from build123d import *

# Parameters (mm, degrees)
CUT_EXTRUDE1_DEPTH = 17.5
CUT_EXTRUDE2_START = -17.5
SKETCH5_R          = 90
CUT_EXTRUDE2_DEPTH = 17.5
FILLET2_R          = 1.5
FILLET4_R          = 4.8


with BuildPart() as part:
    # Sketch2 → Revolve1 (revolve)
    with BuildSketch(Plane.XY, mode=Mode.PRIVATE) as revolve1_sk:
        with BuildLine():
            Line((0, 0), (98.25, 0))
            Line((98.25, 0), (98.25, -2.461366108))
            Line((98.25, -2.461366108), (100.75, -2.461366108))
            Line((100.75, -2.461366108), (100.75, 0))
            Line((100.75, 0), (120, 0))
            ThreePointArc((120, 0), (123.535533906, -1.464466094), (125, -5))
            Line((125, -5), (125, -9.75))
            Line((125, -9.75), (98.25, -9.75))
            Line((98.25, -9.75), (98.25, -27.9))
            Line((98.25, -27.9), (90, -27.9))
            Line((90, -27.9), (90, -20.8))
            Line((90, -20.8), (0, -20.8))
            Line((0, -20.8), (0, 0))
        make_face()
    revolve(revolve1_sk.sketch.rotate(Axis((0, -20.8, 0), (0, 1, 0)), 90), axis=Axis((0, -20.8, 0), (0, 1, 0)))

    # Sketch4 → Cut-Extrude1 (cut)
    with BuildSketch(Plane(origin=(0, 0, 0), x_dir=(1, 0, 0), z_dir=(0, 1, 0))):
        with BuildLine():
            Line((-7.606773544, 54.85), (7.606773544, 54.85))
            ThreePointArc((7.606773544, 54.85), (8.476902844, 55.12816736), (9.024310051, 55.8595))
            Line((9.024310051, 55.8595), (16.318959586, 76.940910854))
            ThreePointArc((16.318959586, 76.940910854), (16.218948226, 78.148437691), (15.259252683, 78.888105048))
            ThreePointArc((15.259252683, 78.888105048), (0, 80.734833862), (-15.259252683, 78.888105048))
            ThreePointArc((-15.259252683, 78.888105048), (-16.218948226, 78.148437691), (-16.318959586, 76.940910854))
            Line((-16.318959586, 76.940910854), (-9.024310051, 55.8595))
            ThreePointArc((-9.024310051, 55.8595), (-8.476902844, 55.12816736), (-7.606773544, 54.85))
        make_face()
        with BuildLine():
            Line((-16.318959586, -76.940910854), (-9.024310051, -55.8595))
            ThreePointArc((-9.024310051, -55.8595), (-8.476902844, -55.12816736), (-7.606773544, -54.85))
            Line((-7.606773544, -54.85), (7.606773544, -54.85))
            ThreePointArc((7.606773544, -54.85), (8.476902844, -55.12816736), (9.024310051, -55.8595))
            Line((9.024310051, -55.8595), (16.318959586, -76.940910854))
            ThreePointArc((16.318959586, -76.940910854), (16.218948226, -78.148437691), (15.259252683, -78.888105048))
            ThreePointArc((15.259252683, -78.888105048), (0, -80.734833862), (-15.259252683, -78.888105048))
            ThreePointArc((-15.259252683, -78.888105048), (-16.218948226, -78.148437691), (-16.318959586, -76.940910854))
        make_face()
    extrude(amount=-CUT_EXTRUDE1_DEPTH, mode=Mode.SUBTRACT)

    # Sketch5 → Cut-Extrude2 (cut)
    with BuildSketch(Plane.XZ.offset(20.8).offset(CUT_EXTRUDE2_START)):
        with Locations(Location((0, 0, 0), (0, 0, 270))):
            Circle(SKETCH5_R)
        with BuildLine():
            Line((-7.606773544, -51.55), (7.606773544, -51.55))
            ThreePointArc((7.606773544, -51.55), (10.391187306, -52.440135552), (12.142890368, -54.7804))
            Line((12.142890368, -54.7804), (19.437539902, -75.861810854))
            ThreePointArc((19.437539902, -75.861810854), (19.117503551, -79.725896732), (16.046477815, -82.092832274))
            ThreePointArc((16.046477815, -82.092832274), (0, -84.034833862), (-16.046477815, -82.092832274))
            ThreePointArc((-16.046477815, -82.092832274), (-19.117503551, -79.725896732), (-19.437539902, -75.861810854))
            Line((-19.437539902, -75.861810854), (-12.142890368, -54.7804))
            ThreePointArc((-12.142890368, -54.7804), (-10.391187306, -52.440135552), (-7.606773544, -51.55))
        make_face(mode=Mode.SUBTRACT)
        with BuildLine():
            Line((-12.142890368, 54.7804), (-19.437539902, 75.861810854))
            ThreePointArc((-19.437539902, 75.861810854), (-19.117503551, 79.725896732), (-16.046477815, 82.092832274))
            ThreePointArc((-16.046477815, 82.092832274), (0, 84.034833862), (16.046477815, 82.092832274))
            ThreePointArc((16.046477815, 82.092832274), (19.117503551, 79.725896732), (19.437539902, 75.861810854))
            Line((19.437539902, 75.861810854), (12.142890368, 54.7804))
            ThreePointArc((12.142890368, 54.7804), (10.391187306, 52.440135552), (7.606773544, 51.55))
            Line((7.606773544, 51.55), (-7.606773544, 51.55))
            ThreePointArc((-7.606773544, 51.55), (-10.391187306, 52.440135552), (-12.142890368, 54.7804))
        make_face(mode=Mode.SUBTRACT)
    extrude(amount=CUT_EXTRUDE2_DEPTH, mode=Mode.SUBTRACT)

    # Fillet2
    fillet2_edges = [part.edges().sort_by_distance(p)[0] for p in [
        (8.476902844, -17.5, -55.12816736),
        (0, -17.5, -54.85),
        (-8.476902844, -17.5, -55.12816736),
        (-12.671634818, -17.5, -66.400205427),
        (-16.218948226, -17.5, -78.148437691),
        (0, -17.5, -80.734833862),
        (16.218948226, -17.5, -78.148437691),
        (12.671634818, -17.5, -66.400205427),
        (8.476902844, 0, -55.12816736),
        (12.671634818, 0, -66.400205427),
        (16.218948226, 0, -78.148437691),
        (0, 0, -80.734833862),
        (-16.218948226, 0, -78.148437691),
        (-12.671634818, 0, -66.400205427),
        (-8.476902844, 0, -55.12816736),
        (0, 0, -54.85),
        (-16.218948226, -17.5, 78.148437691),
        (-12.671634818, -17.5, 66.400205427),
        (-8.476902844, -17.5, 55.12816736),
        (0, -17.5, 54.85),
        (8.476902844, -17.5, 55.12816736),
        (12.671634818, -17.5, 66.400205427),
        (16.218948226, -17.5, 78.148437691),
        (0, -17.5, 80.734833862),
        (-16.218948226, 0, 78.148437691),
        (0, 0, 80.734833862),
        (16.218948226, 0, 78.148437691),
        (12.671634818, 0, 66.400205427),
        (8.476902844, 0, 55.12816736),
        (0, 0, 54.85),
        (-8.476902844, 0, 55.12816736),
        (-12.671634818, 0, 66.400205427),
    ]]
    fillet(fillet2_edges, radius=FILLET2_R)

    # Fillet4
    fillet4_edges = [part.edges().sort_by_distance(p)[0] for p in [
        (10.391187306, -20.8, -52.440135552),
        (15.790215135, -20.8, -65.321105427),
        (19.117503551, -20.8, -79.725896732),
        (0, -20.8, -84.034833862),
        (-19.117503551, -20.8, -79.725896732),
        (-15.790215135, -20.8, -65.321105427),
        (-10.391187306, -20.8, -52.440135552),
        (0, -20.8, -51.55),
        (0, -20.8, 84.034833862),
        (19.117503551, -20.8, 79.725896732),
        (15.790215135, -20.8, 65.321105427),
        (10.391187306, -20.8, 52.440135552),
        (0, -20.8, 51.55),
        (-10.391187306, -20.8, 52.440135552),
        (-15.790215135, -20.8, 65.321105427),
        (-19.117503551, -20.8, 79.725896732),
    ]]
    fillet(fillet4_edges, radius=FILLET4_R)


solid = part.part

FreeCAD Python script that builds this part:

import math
import FreeCAD as App
import Part
import Sketcher


def edges_at(feature, points):
    """Names of the edges that pass closest to the given points."""
    edges = feature.Shape.Edges
    near = lambda p: min(range(len(edges)), key=lambda i: edges[i].distToShape(Part.Vertex(*p))[0])
    return sorted({f"Edge{near(p) + 1}" for p in points})

doc = App.newDocument("Part")
body = doc.addObject("PartDesign::Body", "Body")

# Sketch on XY plane
sketch1 = body.newObject("Sketcher::SketchObject", "Sketch")
sketch1.AttachmentSupport = (doc.getObject("XY_Plane"), [""])
sketch1.MapMode = "FlatFace"
sketch1.addGeometry(Part.LineSegment(App.Vector(98.2, 0, 0), App.Vector(0, 0, 0)), False)
sketch1.addGeometry(Part.LineSegment(App.Vector(0, 0, 0), App.Vector(0, -20.8, 0)), False)
sketch1.addGeometry(Part.LineSegment(App.Vector(0, -20.8, 0), App.Vector(90, -20.8, 0)), False)
sketch1.addGeometry(Part.LineSegment(App.Vector(90, -20.8, 0), App.Vector(90, -27.9, 0)), False)
sketch1.addGeometry(Part.LineSegment(App.Vector(90, -27.9, 0), App.Vector(98.2, -27.9, 0)), False)
sketch1.addGeometry(Part.LineSegment(App.Vector(98.2, -27.9, 0), App.Vector(98.2, -9.8, 0)), False)
sketch1.addGeometry(Part.LineSegment(App.Vector(98.2, -9.8, 0), App.Vector(125, -9.8, 0)), False)
sketch1.addGeometry(Part.LineSegment(App.Vector(125, -9.8, 0), App.Vector(125, -5, 0)), False)
sketch1.addGeometry(Part.ArcOfCircle(Part.Circle(App.Vector(120, -5, 0), App.Vector(0, 0, 1), 5), math.radians(0), math.radians(90)), False)
sketch1.addGeometry(Part.LineSegment(App.Vector(120, 0, 0), App.Vector(100.8, 0, 0)), False)
sketch1.addGeometry(Part.LineSegment(App.Vector(100.8, 0, 0), App.Vector(100.8, -2.5, 0)), False)
sketch1.addGeometry(Part.LineSegment(App.Vector(100.8, -2.5, 0), App.Vector(98.2, -2.5, 0)), False)
sketch1.addGeometry(Part.LineSegment(App.Vector(98.2, -2.5, 0), App.Vector(98.2, 0, 0)), False)
sketch1.addConstraint(Sketcher.Constraint("Coincident", 0, 2, 1, 1))
sketch1.addConstraint(Sketcher.Constraint("Coincident", 1, 2, 2, 1))
sketch1.addConstraint(Sketcher.Constraint("Coincident", 2, 2, 3, 1))
sketch1.addConstraint(Sketcher.Constraint("Coincident", 3, 2, 4, 1))
sketch1.addConstraint(Sketcher.Constraint("Coincident", 4, 2, 5, 1))
sketch1.addConstraint(Sketcher.Constraint("Coincident", 5, 2, 6, 1))
sketch1.addConstraint(Sketcher.Constraint("Coincident", 6, 2, 7, 1))
sketch1.addConstraint(Sketcher.Constraint("Tangent", 7, 2, 8, 1))
sketch1.addConstraint(Sketcher.Constraint("Tangent", 8, 2, 9, 1))
sketch1.addConstraint(Sketcher.Constraint("Coincident", 9, 2, 10, 1))
sketch1.addConstraint(Sketcher.Constraint("Coincident", 10, 2, 11, 1))
sketch1.addConstraint(Sketcher.Constraint("Coincident", 11, 2, 12, 1))
sketch1.addConstraint(Sketcher.Constraint("Coincident", 12, 2, 0, 1))
sketch1.addConstraint(Sketcher.Constraint("Horizontal", 0))
sketch1.addConstraint(Sketcher.Constraint("Vertical", 1))
sketch1.addConstraint(Sketcher.Constraint("Horizontal", 2))
sketch1.addConstraint(Sketcher.Constraint("Vertical", 3))
sketch1.addConstraint(Sketcher.Constraint("Horizontal", 4))
sketch1.addConstraint(Sketcher.Constraint("Vertical", 5))
sketch1.addConstraint(Sketcher.Constraint("Horizontal", 6))
sketch1.addConstraint(Sketcher.Constraint("Vertical", 7))
sketch1.addConstraint(Sketcher.Constraint("Horizontal", 9))
sketch1.addConstraint(Sketcher.Constraint("Vertical", 10))
sketch1.addConstraint(Sketcher.Constraint("Horizontal", 11))
sketch1.addConstraint(Sketcher.Constraint("Vertical", 12))
sketch1.addConstraint(Sketcher.Constraint("Coincident", 0, 2, -1, 1))
sketch1.addConstraint(Sketcher.Constraint("PointOnObject", 8, 2, -1))
sketch1.addConstraint(Sketcher.Constraint("Vertical", 5, 2, 11, 2))
sketch1.addConstraint(Sketcher.Constraint("Radius", 8, 5.0))
sketch1.addConstraint(Sketcher.Constraint("DistanceX", 2, 1, 2, 2, 90.0))
sketch1.addConstraint(Sketcher.Constraint("DistanceX", 11, 2, 11, 1, 2.5))
sketch1.addConstraint(Sketcher.Constraint("DistanceY", 1, 2, 1, 1, 20.8))
sketch1.addConstraint(Sketcher.Constraint("DistanceY", 3, 2, 3, 1, 7.1))
sketch1.addConstraint(Sketcher.Constraint("DistanceX", -1, 1, 8, 3, 120.0))
sketch1.addConstraint(Sketcher.Constraint("DistanceX", 0, 2, 0, 1, 98.25))
sketch1.addConstraint(Sketcher.Constraint("DistanceY", 5, 1, 5, 2, 18.15))
sketch1.addConstraint(Sketcher.Constraint("DistanceY", 10, 2, 10, 1, 2.461366))
revolution = body.newObject("PartDesign::Revolution", "Revolution")
revolution.Profile = sketch1
revolution.ReferenceAxis = (sketch1, ["V_Axis"])
revolution.Angle = 360

# Sketch on XZ plane
sketch2 = body.newObject("Sketcher::SketchObject", "Sketch001")
sketch2.AttachmentSupport = (doc.getObject("XZ_Plane"), [""])
sketch2.MapMode = "FlatFace"
sketch2.addGeometry(Part.LineSegment(App.Vector(-7.6, -54.9, 0), App.Vector(7.6, -54.9, 0)), False)
sketch2.addGeometry(Part.ArcOfCircle(Part.Circle(App.Vector(7.6, -56.4, 0), App.Vector(0, 0, 1), 1.5), math.radians(19), math.radians(90)), False)
sketch2.addGeometry(Part.LineSegment(App.Vector(9, -55.9, 0), App.Vector(16.3, -76.9, 0)), False)
sketch2.addGeometry(Part.ArcOfCircle(Part.Circle(App.Vector(14.9, -77.4, 0), App.Vector(0, 0, 1), 1.5), math.radians(-76), math.radians(19)), False)
sketch2.addGeometry(Part.ArcOfCircle(Part.Circle(App.Vector(0, -16.8, 0), App.Vector(0, 0, 1), 64), math.radians(-104), math.radians(-76)), False)
sketch2.addGeometry(Part.ArcOfCircle(Part.Circle(App.Vector(-14.9, -77.4, 0), App.Vector(0, 0, 1), 1.5), math.radians(161), math.radians(256)), False)
sketch2.addGeometry(Part.LineSegment(App.Vector(-16.3, -76.9, 0), App.Vector(-9, -55.9, 0)), False)
sketch2.addGeometry(Part.ArcOfCircle(Part.Circle(App.Vector(-7.6, -56.4, 0), App.Vector(0, 0, 1), 1.5), math.radians(90), math.radians(161)), False)
sketch2.addGeometry(Part.LineSegment(App.Vector(-9, 55.9, 0), App.Vector(-16.3, 76.9, 0)), False)
sketch2.addGeometry(Part.ArcOfCircle(Part.Circle(App.Vector(-14.9, 77.4, 0), App.Vector(0, 0, 1), 1.5), math.radians(104), math.radians(199)), False)
sketch2.addGeometry(Part.ArcOfCircle(Part.Circle(App.Vector(0, 16.8, 0), App.Vector(0, 0, 1), 64), math.radians(76), math.radians(104)), False)
sketch2.addGeometry(Part.ArcOfCircle(Part.Circle(App.Vector(14.9, 77.4, 0), App.Vector(0, 0, 1), 1.5), math.radians(-19), math.radians(76)), False)
sketch2.addGeometry(Part.LineSegment(App.Vector(16.3, 76.9, 0), App.Vector(9, 55.9, 0)), False)
sketch2.addGeometry(Part.ArcOfCircle(Part.Circle(App.Vector(7.6, 56.4, 0), App.Vector(0, 0, 1), 1.5), math.radians(-90), math.radians(-19)), False)
sketch2.addGeometry(Part.LineSegment(App.Vector(7.6, 54.9, 0), App.Vector(-7.6, 54.9, 0)), False)
sketch2.addGeometry(Part.ArcOfCircle(Part.Circle(App.Vector(-7.6, 56.4, 0), App.Vector(0, 0, 1), 1.5), math.radians(-161), math.radians(-90)), False)
sketch2.addConstraint(Sketcher.Constraint("Tangent", 0, 2, 1, 2))
sketch2.addConstraint(Sketcher.Constraint("Tangent", 1, 1, 2, 1))
sketch2.addConstraint(Sketcher.Constraint("Tangent", 2, 2, 3, 2))
sketch2.addConstraint(Sketcher.Constraint("Tangent", 3, 1, 4, 2))
sketch2.addConstraint(Sketcher.Constraint("Tangent", 4, 1, 5, 2))
sketch2.addConstraint(Sketcher.Constraint("Tangent", 5, 1, 6, 1))
sketch2.addConstraint(Sketcher.Constraint("Tangent", 6, 2, 7, 2))
sketch2.addConstraint(Sketcher.Constraint("Tangent", 7, 1, 0, 1))
sketch2.addConstraint(Sketcher.Constraint("Tangent", 8, 2, 9, 2))
sketch2.addConstraint(Sketcher.Constraint("Tangent", 9, 1, 10, 2))
sketch2.addConstraint(Sketcher.Constraint("Tangent", 10, 1, 11, 2))
sketch2.addConstraint(Sketcher.Constraint("Tangent", 11, 1, 12, 1))
sketch2.addConstraint(Sketcher.Constraint("Tangent", 12, 2, 13, 2))
sketch2.addConstraint(Sketcher.Constraint("Tangent", 13, 1, 14, 1))
sketch2.addConstraint(Sketcher.Constraint("Tangent", 14, 2, 15, 2))
sketch2.addConstraint(Sketcher.Constraint("Tangent", 15, 1, 8, 1))
sketch2.addConstraint(Sketcher.Constraint("Horizontal", 0))
sketch2.addConstraint(Sketcher.Constraint("Horizontal", 14))
sketch2.addConstraint(Sketcher.Constraint("Equal", 1, 3))
sketch2.addConstraint(Sketcher.Constraint("Equal", 3, 5))
sketch2.addConstraint(Sketcher.Constraint("Equal", 5, 7))
sketch2.addConstraint(Sketcher.Constraint("Equal", 7, 9))
sketch2.addConstraint(Sketcher.Constraint("Equal", 4, 10))
sketch2.addConstraint(Sketcher.Constraint("Equal", 9, 11))
sketch2.addConstraint(Sketcher.Constraint("Equal", 11, 13))
sketch2.addConstraint(Sketcher.Constraint("Equal", 13, 15))
sketch2.addConstraint(Sketcher.Constraint("Symmetric", 3, 3, 9, 3, -1, 1))
sketch2.addConstraint(Sketcher.Constraint("Symmetric", 5, 3, 11, 3, -1, 1))
sketch2.addConstraint(Sketcher.Constraint("Symmetric", 7, 3, 13, 3, -1, 1))
sketch2.addConstraint(Sketcher.Constraint("Symmetric", 3, 3, 5, 3, -2))
sketch2.addConstraint(Sketcher.Constraint("Parallel", 2, 8))
sketch2.addConstraint(Sketcher.Constraint("Horizontal", 2, 2, 5, 1))
sketch2.addConstraint(Sketcher.Constraint("Radius", 1, 1.5))
sketch2.addConstraint(Sketcher.Constraint("DistanceY", 1, 3, 13, 3, 112.7))
sketch2.addConstraint(Sketcher.Constraint("Radius", 4, 63.965862))
sketch2.addConstraint(Sketcher.Constraint("DistanceY", 1, 1, -1, 1, 55.8595))
sketch2.addConstraint(Sketcher.Constraint("DistanceX", 0, 1, 0, 2, 15.213547))
sketch2.addConstraint(Sketcher.Constraint("DistanceY", 3, 3, -1, 1, 77.431411))
pocket1 = body.newObject("PartDesign::Pocket", "Pocket")
pocket1.Profile = sketch2
pocket1.Length = 17.5
pocket1.Reversed = True

# Sketch on XZ plane
sketch3 = body.newObject("Sketcher::SketchObject", "Sketch002")
sketch3.AttachmentSupport = (doc.getObject("XZ_Plane"), [""])
sketch3.MapMode = "FlatFace"
sketch3.AttachmentOffset = App.Placement(App.Vector(0, 0, 3.3), App.Rotation())
sketch3.addGeometry(Part.Circle(App.Vector(0, 0, 0), App.Vector(0, 0, 1), 90), False)
sketch3.addGeometry(Part.ArcOfCircle(Part.Circle(App.Vector(-7.6, 56.4, 0), App.Vector(0, 0, 1), 4.8), math.radians(-161), math.radians(-90)), False)
sketch3.addGeometry(Part.LineSegment(App.Vector(-12.1, 54.8, 0), App.Vector(-19.4, 75.9, 0)), False)
sketch3.addGeometry(Part.ArcOfCircle(Part.Circle(App.Vector(-14.9, 77.4, 0), App.Vector(0, 0, 1), 4.8), math.radians(104), math.radians(199)), False)
sketch3.addGeometry(Part.ArcOfCircle(Part.Circle(App.Vector(0, 16.8, 0), App.Vector(0, 0, 1), 67.3), math.radians(76), math.radians(104)), False)
sketch3.addGeometry(Part.ArcOfCircle(Part.Circle(App.Vector(14.9, 77.4, 0), App.Vector(0, 0, 1), 4.8), math.radians(-19), math.radians(76)), False)
sketch3.addGeometry(Part.LineSegment(App.Vector(19.4, 75.9, 0), App.Vector(12.1, 54.8, 0)), False)
sketch3.addGeometry(Part.ArcOfCircle(Part.Circle(App.Vector(7.6, 56.4, 0), App.Vector(0, 0, 1), 4.8), math.radians(-90), math.radians(-19)), False)
sketch3.addGeometry(Part.LineSegment(App.Vector(7.6, 51.5, 0), App.Vector(-7.6, 51.5, 0)), False)
sketch3.addGeometry(Part.ArcOfCircle(Part.Circle(App.Vector(-7.6, -56.4, 0), App.Vector(0, 0, 1), 4.8), math.radians(90), math.radians(161)), False)
sketch3.addGeometry(Part.LineSegment(App.Vector(-7.6, -51.5, 0), App.Vector(7.6, -51.5, 0)), False)
sketch3.addGeometry(Part.ArcOfCircle(Part.Circle(App.Vector(7.6, -56.4, 0), App.Vector(0, 0, 1), 4.8), math.radians(19), math.radians(90)), False)
sketch3.addGeometry(Part.LineSegment(App.Vector(12.1, -54.8, 0), App.Vector(19.4, -75.9, 0)), False)
sketch3.addGeometry(Part.ArcOfCircle(Part.Circle(App.Vector(14.9, -77.4, 0), App.Vector(0, 0, 1), 4.8), math.radians(-76), math.radians(19)), False)
sketch3.addGeometry(Part.ArcOfCircle(Part.Circle(App.Vector(0, -16.8, 0), App.Vector(0, 0, 1), 67.3), math.radians(-104), math.radians(-76)), False)
sketch3.addGeometry(Part.ArcOfCircle(Part.Circle(App.Vector(-14.9, -77.4, 0), App.Vector(0, 0, 1), 4.8), math.radians(161), math.radians(256)), False)
sketch3.addGeometry(Part.LineSegment(App.Vector(-19.4, -75.9, 0), App.Vector(-12.1, -54.8, 0)), False)
sketch3.addConstraint(Sketcher.Constraint("Tangent", 1, 1, 2, 1))
sketch3.addConstraint(Sketcher.Constraint("Tangent", 2, 2, 3, 2))
sketch3.addConstraint(Sketcher.Constraint("Tangent", 3, 1, 4, 2))
sketch3.addConstraint(Sketcher.Constraint("Tangent", 4, 1, 5, 2))
sketch3.addConstraint(Sketcher.Constraint("Tangent", 5, 1, 6, 1))
sketch3.addConstraint(Sketcher.Constraint("Tangent", 6, 2, 7, 2))
sketch3.addConstraint(Sketcher.Constraint("Tangent", 7, 1, 8, 1))
sketch3.addConstraint(Sketcher.Constraint("Tangent", 8, 2, 1, 2))
sketch3.addConstraint(Sketcher.Constraint("Tangent", 9, 1, 10, 1))
sketch3.addConstraint(Sketcher.Constraint("Tangent", 10, 2, 11, 2))
sketch3.addConstraint(Sketcher.Constraint("Tangent", 11, 1, 12, 1))
sketch3.addConstraint(Sketcher.Constraint("Tangent", 12, 2, 13, 2))
sketch3.addConstraint(Sketcher.Constraint("Tangent", 13, 1, 14, 2))
sketch3.addConstraint(Sketcher.Constraint("Tangent", 14, 1, 15, 2))
sketch3.addConstraint(Sketcher.Constraint("Tangent", 15, 1, 16, 1))
sketch3.addConstraint(Sketcher.Constraint("Tangent", 16, 2, 9, 2))
sketch3.addConstraint(Sketcher.Constraint("Horizontal", 8))
sketch3.addConstraint(Sketcher.Constraint("Horizontal", 10))
sketch3.addConstraint(Sketcher.Constraint("Coincident", 0, 3, -1, 1))
sketch3.addConstraint(Sketcher.Constraint("Equal", 1, 3))
sketch3.addConstraint(Sketcher.Constraint("Equal", 3, 5))
sketch3.addConstraint(Sketcher.Constraint("Equal", 5, 7))
sketch3.addConstraint(Sketcher.Constraint("Equal", 7, 9))
sketch3.addConstraint(Sketcher.Constraint("Equal", 9, 11))
sketch3.addConstraint(Sketcher.Constraint("Equal", 11, 13))
sketch3.addConstraint(Sketcher.Constraint("Equal", 4, 14))
sketch3.addConstraint(Sketcher.Constraint("Equal", 13, 15))
sketch3.addConstraint(Sketcher.Constraint("Symmetric", 7, 3, 9, 3, -1, 1))
sketch3.addConstraint(Sketcher.Constraint("Symmetric", 3, 3, 13, 3, -1, 1))
sketch3.addConstraint(Sketcher.Constraint("Symmetric", 5, 3, 15, 3, -1, 1))
sketch3.addConstraint(Sketcher.Constraint("Symmetric", 3, 3, 5, 3, -2))
sketch3.addConstraint(Sketcher.Constraint("Parallel", 2, 12))
sketch3.addConstraint(Sketcher.Constraint("Horizontal", 2, 2, 5, 1))
sketch3.addConstraint(Sketcher.Constraint("Diameter", 0, 180.0))
sketch3.addConstraint(Sketcher.Constraint("Radius", 1, 4.8))
sketch3.addConstraint(Sketcher.Constraint("DistanceY", 9, 3, 1, 3, 112.7))
sketch3.addConstraint(Sketcher.Constraint("Radius", 4, 67.265862))
sketch3.addConstraint(Sketcher.Constraint("DistanceY", -1, 1, 1, 1, 54.7804))
sketch3.addConstraint(Sketcher.Constraint("DistanceX", 3, 1, 5, 3, 30.947901))
sketch3.addConstraint(Sketcher.Constraint("DistanceX", 8, 2, 8, 1, 15.213547))
pocket2 = body.newObject("PartDesign::Pocket", "Pocket001")
pocket2.Profile = sketch3
pocket2.Length = 17.5
pocket2.Reversed = True
doc.recompute()

fillet = body.newObject("PartDesign::Fillet", "Fillet")
fillet.Base = (pocket2, edges_at(pocket2, [
    (8.477, -17.5, -55.128),
    (0, -17.5, -54.85),
    (-8.477, -17.5, -55.128),
    (-12.672, -17.5, -66.4),
    (-16.219, -17.5, -78.148),
    (0, -17.5, -80.735),
    (16.219, -17.5, -78.148),
    (12.672, -17.5, -66.4),
    (8.477, 0, -55.128),
    (12.672, 0, -66.4),
    (16.219, 0, -78.148),
    (0, 0, -80.735),
    (-16.219, 0, -78.148),
    (-12.672, 0, -66.4),
    (-8.477, 0, -55.128),
    (0, 0, -54.85),
    (-16.219, -17.5, 78.148),
    (-12.672, -17.5, 66.4),
    (-8.477, -17.5, 55.128),
    (0, -17.5, 54.85),
    (8.477, -17.5, 55.128),
    (12.672, -17.5, 66.4),
    (16.219, -17.5, 78.148),
    (0, -17.5, 80.735),
    (-16.219, 0, 78.148),
    (0, 0, 80.735),
    (16.219, 0, 78.148),
    (12.672, 0, 66.4),
    (8.477, 0, 55.128),
    (0, 0, 54.85),
    (-8.477, 0, 55.128),
    (-12.672, 0, 66.4),
]))
fillet.Radius = 1.5
doc.recompute()

fillet2 = body.newObject("PartDesign::Fillet", "Fillet001")
fillet2.Base = (fillet, edges_at(fillet, [
    (10.391, -20.8, -52.44),
    (15.79, -20.8, -65.321),
    (19.118, -20.8, -79.726),
    (0, -20.8, -84.035),
    (-19.118, -20.8, -79.726),
    (-15.79, -20.8, -65.321),
    (-10.391, -20.8, -52.44),
    (0, -20.8, -51.55),
    (0, -20.8, 84.035),
    (19.118, -20.8, 79.726),
    (15.79, -20.8, 65.321),
    (10.391, -20.8, 52.44),
    (0, -20.8, 51.55),
    (-10.391, -20.8, 52.44),
    (-15.79, -20.8, 65.321),
    (-19.118, -20.8, 79.726),
]))
fillet2.Radius = 4.8

doc.recompute()
